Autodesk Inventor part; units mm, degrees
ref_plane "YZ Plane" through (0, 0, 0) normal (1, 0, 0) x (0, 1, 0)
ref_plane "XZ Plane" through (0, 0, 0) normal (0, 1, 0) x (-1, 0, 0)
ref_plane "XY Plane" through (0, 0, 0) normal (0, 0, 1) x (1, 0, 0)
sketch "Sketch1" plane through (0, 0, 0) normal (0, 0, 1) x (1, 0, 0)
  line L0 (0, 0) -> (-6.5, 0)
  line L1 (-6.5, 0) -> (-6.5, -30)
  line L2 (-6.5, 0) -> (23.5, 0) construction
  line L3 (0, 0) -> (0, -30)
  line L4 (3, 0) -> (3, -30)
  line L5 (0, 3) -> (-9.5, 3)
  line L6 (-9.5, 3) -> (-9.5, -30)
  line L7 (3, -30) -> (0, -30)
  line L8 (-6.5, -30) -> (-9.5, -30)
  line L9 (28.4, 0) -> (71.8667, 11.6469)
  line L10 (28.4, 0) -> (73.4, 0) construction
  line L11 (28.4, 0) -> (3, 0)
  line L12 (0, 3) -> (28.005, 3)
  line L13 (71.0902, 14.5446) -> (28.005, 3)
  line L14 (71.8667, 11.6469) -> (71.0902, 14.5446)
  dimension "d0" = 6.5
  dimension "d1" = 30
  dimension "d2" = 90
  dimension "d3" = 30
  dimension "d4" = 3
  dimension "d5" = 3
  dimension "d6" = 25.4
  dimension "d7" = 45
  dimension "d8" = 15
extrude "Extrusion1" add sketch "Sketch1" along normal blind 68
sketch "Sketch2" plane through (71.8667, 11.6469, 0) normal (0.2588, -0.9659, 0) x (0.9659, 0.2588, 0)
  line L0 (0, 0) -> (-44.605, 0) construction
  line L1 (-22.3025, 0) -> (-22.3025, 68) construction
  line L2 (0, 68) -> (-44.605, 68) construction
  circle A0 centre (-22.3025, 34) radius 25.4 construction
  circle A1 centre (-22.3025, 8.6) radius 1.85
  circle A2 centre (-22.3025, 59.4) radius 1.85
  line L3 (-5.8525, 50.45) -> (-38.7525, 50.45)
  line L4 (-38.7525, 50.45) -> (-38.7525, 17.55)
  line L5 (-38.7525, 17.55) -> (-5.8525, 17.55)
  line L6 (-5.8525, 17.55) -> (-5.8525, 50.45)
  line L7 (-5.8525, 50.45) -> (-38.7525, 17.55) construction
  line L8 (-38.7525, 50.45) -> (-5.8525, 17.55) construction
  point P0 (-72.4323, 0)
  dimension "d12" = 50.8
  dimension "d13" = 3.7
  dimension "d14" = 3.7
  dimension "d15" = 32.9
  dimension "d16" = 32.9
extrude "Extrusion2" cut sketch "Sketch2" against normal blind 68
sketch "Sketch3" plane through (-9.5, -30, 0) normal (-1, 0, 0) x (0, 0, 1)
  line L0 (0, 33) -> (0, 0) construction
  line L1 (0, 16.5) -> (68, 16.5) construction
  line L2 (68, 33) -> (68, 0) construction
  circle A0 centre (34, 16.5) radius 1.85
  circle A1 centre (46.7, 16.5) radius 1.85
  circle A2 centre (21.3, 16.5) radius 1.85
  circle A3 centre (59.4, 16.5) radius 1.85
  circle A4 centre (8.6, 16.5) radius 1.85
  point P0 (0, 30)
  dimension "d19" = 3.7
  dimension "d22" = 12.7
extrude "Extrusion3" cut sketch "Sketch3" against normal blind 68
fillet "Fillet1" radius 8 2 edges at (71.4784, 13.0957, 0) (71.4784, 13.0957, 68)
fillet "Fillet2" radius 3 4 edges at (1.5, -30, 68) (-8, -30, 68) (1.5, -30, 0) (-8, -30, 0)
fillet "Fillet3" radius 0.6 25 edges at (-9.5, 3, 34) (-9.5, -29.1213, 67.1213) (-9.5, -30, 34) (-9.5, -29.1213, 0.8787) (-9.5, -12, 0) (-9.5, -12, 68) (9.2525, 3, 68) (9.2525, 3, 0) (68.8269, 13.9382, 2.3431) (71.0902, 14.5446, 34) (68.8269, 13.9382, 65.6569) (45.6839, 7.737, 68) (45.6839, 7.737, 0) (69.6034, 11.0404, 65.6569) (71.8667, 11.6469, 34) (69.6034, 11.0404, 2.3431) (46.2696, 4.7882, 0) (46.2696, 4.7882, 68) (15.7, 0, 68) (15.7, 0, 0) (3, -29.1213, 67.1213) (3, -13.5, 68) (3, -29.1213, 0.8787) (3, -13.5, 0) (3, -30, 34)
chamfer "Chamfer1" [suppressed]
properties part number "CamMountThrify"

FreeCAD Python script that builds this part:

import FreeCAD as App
import Part
import Sketcher
from FreeCAD import Vector
Q = App.Units.Quantity


def edges_at(feature, points):
    """Names of the edges that pass closest to the given points."""
    edges = feature.Shape.Edges
    near = lambda p: min(range(len(edges)), key=lambda i: edges[i].distToShape(Part.Vertex(*p))[0])
    return sorted({f"Edge{near(p) + 1}" for p in points})


def add_polygon(sketch, points):
    """Adds a closed chain of lines whose ends are joined by coincident constraints."""
    first, n = sketch.GeometryCount, len(points)
    for a, b in zip(points, points[1:] + points[:1]):
        sketch.addGeometry(Part.LineSegment(App.Vector(*a, 0), App.Vector(*b, 0)), False)
    for i in range(n):
        sketch.addConstraint(Sketcher.Constraint("Coincident", first + i, 2, first + (i + 1) % n, 1))

doc = App.newDocument("Part")
body = doc.addObject("PartDesign::Body", "Body")

sketch1 = body.newObject("Sketcher::SketchObject", "Sketch")
sketch1.AttachmentSupport = (doc.getObject("XY_Plane"), [""])
sketch1.MapMode = "FlatFace"
add_polygon(sketch1, [(-6.5, 0), (0, 0), (0, -30), (3, -30), (3, 0), (28.4, 0), (71.9, 11.6), (71.1, 14.5), (28, 3), (-9.5, 3), (-9.5, -30), (-6.5, -30)])
sketch1.addConstraint([
    Sketcher.Constraint("Horizontal", 0),
    Sketcher.Constraint("Vertical", 1),
    Sketcher.Constraint("Horizontal", 2),
    Sketcher.Constraint("Vertical", 3),
    Sketcher.Constraint("Horizontal", 4),
    Sketcher.Constraint("Horizontal", 8),
    Sketcher.Constraint("Vertical", 9),
    Sketcher.Constraint("Horizontal", 10),
    Sketcher.Constraint("Vertical", 11),
    Sketcher.Constraint("Coincident", 0, 2, -1, 1),
    Sketcher.Constraint("PointOnObject", 3, 2, -1),
    Sketcher.Constraint("Perpendicular", 5, 6),
    Sketcher.Constraint("Perpendicular", 6, 7),
    Sketcher.Constraint("Horizontal", 2, 2, 9, 2),
    Sketcher.Constraint("Equal", 2, 10),
    Sketcher.Constraint("DistanceX", 2, 1, 2, 2, 3.0),
    Sketcher.Constraint("DistanceY", 1, 2, 1, 1, 30.0),
    Sketcher.Constraint("Angle", 5, Q("15 deg")),
    Sketcher.Constraint("Distance", 5, 45.0),
    Sketcher.Constraint("Distance", 6, 3.0),
    Sketcher.Constraint("DistanceX", 0, 1, 0, 2, 6.5),
    Sketcher.Constraint("DistanceX", 4, 1, 4, 2, 25.4),
    Sketcher.Constraint("DistanceY", -1, 1, 7, 2, 3.0),
])
pad1 = body.newObject("PartDesign::Pad", "Pad")
pad1.Profile = sketch1
pad1.Length = 68

sketch2 = body.newObject("Sketcher::SketchObject", "Sketch001")
sketch2.Placement = App.Placement(Vector(71.8667, 11.6469, 0), App.Rotation(Vector(0.965925826, 0.258819045, 0), Vector(0, 0, 0.999999999), Vector(0.258819045, -0.965925826, 0), "ZXY"))
sketch2.addGeometry(Part.Circle(Vector(-22.3, 8.6, 0), Vector(0, 0, 1), 1.9), False)
sketch2.addGeometry(Part.Circle(Vector(-22.3, 59.4, 0), Vector(0, 0, 1), 1.9), False)
add_polygon(sketch2, [(-5.9, 17.5), (-5.9, 50.4), (-38.8, 50.4), (-38.8, 17.5)])
sketch2.addConstraint([
    Sketcher.Constraint("Vertical", 2),
    Sketcher.Constraint("Horizontal", 3),
    Sketcher.Constraint("Vertical", 4),
    Sketcher.Constraint("Horizontal", 5),
    Sketcher.Constraint("Equal", 0, 1),
    Sketcher.Constraint("Vertical", 0, 3, 1, 3),
    Sketcher.Constraint("Equal", 5, 2),
    Sketcher.Constraint("Diameter", 0, 3.7),
    Sketcher.Constraint("DistanceX", 3, 2, 3, 1, 32.9),
    Sketcher.Constraint("DistanceY", 0, 3, 1, 3, 50.8),
    Sketcher.Constraint("DistanceY", -1, 1, 0, 3, 8.6),
    Sketcher.Constraint("DistanceY", -1, 1, 2, 2, 50.45),
    Sketcher.Constraint("DistanceX", 1, 3, 2, 2, 16.45),
    Sketcher.Constraint("DistanceX", 0, 3, -1, 1, 22.3025),
])
pocket1 = body.newObject("PartDesign::Pocket", "Pocket")
pocket1.Profile = sketch2
pocket1.Length = 68

sketch3 = body.newObject("Sketcher::SketchObject", "Sketch002")
sketch3.AttachmentSupport = (doc.getObject("YZ_Plane"), [""])
sketch3.MapMode = "FlatFace"
sketch3.AttachmentOffset = App.Placement(Vector(0, 0, -9.5), App.Rotation())
sketch3.addGeometry([
    Part.Circle(Vector(-13.5, 34, 0), Vector(0, 0, 1), 1.9),
    Part.Circle(Vector(-13.5, 46.7, 0), Vector(0, 0, 1), 1.9),
    Part.Circle(Vector(-13.5, 21.3, 0), Vector(0, 0, 1), 1.9),
    Part.Circle(Vector(-13.5, 59.4, 0), Vector(0, 0, 1), 1.9),
    Part.Circle(Vector(-13.5, 8.6, 0), Vector(0, 0, 1), 1.9),
], False)
sketch3.addConstraint([
    Sketcher.Constraint("Equal", 0, 1),
    Sketcher.Constraint("Equal", 1, 2),
    Sketcher.Constraint("Equal", 2, 3),
    Sketcher.Constraint("Equal", 3, 4),
    Sketcher.Constraint("Vertical", 0, 3, 1, 3),
    Sketcher.Constraint("Vertical", 1, 3, 2, 3),
    Sketcher.Constraint("Vertical", 2, 3, 3, 3),
    Sketcher.Constraint("Vertical", 3, 3, 4, 3),
    Sketcher.Constraint("Diameter", 0, 3.7),
    Sketcher.Constraint("DistanceY", 0, 3, 1, 3, 12.7),
    Sketcher.Constraint("DistanceY", 2, 3, 0, 3, 12.7),
    Sketcher.Constraint("DistanceY", 1, 3, 3, 3, 12.7),
    Sketcher.Constraint("DistanceY", 4, 3, 2, 3, 12.7),
    Sketcher.Constraint("DistanceY", -1, 1, 0, 3, 34.0),
    Sketcher.Constraint("DistanceX", 0, 3, -1, 1, 13.5),
])
pocket2 = body.newObject("PartDesign::Pocket", "Pocket001")
pocket2.Profile = sketch3
pocket2.Length = 68
pocket2.Reversed = True
doc.recompute()

fillet = body.newObject("PartDesign::Fillet", "Fillet")
fillet.Base = (pocket2, edges_at(pocket2, [(71.478, 13.096, 0), (71.478, 13.096, 68)]))
fillet.Radius = 8
doc.recompute()

fillet2 = body.newObject("PartDesign::Fillet", "Fillet001")
fillet2.Base = (fillet, edges_at(fillet, [
    (1.5, -30, 68),
    (-8, -30, 68),
    (1.5, -30, 0),
    (-8, -30, 0),
]))
fillet2.Radius = 3
doc.recompute()

fillet3 = body.newObject("PartDesign::Fillet", "Fillet002")
fillet3.Base = (fillet2, edges_at(fillet2, [
    (-9.5, 3, 34),
    (-9.5, -29.121, 67.121),
    (-9.5, -30, 34),
    (-9.5, -29.121, 0.879),
    (-9.5, -12, 0),
    (-9.5, -12, 68),
    (9.252, 3, 68),
    (9.252, 3, 0),
    (68.827, 13.938, 2.343),
    (71.09, 14.545, 34),
    (68.827, 13.938, 65.657),
    (45.684, 7.737, 68),
    (45.684, 7.737, 0),
    (69.603, 11.04, 65.657),
    (71.867, 11.647, 34),
    (69.603, 11.04, 2.343),
    (46.27, 4.788, 0),
    (46.27, 4.788, 68),
    (15.7, 0, 68),
    (15.7, 0, 0),
    (3, -29.121, 67.121),
    (3, -13.5, 68),
    (3, -29.121, 0.879),
    (3, -13.5, 0),
    (3, -30, 34),
]))
fillet3.Radius = 0.6

doc.recompute()
